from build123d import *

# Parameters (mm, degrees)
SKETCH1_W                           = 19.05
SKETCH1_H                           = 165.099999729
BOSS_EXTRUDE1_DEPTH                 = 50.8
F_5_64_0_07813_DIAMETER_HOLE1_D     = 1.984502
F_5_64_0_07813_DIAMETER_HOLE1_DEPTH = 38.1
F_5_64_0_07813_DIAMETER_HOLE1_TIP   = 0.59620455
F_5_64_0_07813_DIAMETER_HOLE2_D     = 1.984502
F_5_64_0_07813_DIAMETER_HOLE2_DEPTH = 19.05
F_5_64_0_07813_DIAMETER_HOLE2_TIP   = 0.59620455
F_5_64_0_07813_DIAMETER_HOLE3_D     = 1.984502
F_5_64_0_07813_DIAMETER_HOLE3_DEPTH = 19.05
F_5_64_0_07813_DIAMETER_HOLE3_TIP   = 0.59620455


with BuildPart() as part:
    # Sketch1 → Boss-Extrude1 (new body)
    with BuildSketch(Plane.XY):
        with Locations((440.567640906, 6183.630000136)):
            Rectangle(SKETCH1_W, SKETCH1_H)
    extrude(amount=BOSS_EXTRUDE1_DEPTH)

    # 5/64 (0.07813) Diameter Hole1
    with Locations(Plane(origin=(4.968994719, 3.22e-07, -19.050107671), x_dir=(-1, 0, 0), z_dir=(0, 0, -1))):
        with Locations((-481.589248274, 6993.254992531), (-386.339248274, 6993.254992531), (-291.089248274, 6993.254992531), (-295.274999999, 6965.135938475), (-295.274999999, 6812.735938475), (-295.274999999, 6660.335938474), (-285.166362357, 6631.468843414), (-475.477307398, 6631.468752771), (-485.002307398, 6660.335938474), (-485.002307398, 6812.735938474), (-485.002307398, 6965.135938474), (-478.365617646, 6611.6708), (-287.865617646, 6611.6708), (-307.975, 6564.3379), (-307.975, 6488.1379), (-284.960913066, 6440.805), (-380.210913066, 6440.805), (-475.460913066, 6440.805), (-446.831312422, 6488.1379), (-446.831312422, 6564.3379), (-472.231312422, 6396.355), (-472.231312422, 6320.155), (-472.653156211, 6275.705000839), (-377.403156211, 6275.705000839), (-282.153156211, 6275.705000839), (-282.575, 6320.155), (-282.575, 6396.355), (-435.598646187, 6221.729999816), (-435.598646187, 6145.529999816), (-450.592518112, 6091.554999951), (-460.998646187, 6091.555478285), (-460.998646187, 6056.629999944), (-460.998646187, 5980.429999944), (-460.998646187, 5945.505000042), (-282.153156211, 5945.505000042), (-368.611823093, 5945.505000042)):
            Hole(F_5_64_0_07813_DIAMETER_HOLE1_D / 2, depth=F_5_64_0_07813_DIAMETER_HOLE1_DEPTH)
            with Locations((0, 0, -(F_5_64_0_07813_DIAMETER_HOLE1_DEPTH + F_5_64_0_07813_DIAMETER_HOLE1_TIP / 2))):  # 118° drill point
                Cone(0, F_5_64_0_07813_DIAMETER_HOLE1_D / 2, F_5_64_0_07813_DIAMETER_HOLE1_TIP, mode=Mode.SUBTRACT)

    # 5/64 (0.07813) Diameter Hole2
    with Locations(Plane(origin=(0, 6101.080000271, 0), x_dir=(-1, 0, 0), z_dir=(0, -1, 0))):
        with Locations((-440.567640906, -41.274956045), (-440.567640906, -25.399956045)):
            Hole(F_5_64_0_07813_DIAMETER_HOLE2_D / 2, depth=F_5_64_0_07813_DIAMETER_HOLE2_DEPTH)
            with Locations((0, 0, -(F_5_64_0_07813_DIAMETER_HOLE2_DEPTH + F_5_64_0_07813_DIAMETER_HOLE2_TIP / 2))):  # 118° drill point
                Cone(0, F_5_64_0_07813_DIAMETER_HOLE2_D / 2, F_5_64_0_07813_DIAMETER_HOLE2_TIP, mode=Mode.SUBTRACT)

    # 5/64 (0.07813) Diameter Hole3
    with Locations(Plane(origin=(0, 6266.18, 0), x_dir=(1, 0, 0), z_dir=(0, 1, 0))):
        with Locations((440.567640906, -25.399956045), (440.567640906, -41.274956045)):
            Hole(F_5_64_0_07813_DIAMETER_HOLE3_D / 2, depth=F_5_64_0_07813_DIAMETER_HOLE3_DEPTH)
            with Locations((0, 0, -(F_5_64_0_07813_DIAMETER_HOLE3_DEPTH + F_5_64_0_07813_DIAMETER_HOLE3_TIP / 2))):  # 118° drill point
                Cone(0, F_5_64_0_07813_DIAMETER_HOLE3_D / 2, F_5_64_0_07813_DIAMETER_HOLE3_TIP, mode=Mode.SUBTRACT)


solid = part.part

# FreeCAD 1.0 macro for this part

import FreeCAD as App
import Part
import Sketcher

V = App.Vector
Q = App.Units.Quantity

doc = App.newDocument("Part")
body = doc.addObject("PartDesign::Body", "Body")

# Sketch on XY plane
sketch1 = body.newObject("Sketcher::SketchObject", "Sketch")
sketch1.AttachmentSupport = (doc.getObject("XY_Plane"), [""])
sketch1.MapMode = "FlatFace"
sketch1.addGeometry([
    Part.LineSegment(V(431.042641, 6266.18, 0), V(431.042641, 6101.08, 0)),
    Part.LineSegment(V(431.042641, 6101.08, 0), V(450.092641, 6101.08, 0)),
    Part.LineSegment(V(450.092641, 6101.08, 0), V(450.092641, 6266.18, 0)),
    Part.LineSegment(V(450.092641, 6266.18, 0), V(431.042641, 6266.18, 0)),
], False)
sketch1.addConstraint([
    Sketcher.Constraint("Coincident", 0, 2, 1, 1),
    Sketcher.Constraint("Coincident", 1, 2, 2, 1),
    Sketcher.Constraint("Coincident", 2, 2, 3, 1),
    Sketcher.Constraint("Coincident", 3, 2, 0, 1),
    Sketcher.Constraint("Vertical", 0),
    Sketcher.Constraint("Horizontal", 1),
    Sketcher.Constraint("Vertical", 2),
    Sketcher.Constraint("Horizontal", 3),
    Sketcher.Constraint("DistanceY", 0, 2, 0, 1, Q("6.5 in")),
    Sketcher.Constraint("DistanceX", 1, 1, 1, 2, Q("0.75 in")),
    Sketcher.Constraint("DistanceY", -1, 1, 0, 2, Q("240.2 in")),
    Sketcher.Constraint("DistanceX", -1, 1, 0, 2, 431.042641),
])
pad1 = body.newObject("PartDesign::Pad", "Pad")
pad1.Profile = sketch1
pad1.Length = Q("2 in")

# Sketch on XY plane
sketch2 = body.newObject("Sketcher::SketchObject", "Sketch001")
sketch2.AttachmentSupport = (doc.getObject("XY_Plane"), [""])
sketch2.MapMode = "FlatFace"
sketch2.AttachmentOffset = App.Placement(V(0, 0, -19.050108), App.Rotation())
sketch2.addGeometry([
    Part.Circle(V(486.558243, 6993.254993, 0), V(0, 0, 1), 0.992251),  # 0
    Part.Circle(V(391.308243, 6993.254993, 0), V(0, 0, 1), 0.992251),  # 1
    Part.Circle(V(296.058243, 6993.254993, 0), V(0, 0, 1), 0.992251),  # 2
    Part.Circle(V(300.243995, 6965.135939, 0), V(0, 0, 1), 0.992251),  # 3
    Part.Circle(V(300.243995, 6812.735939, 0), V(0, 0, 1), 0.992251),  # 4
    Part.Circle(V(300.243995, 6660.335939, 0), V(0, 0, 1), 0.992251),  # 5
    Part.Circle(V(290.135357, 6631.468844, 0), V(0, 0, 1), 0.992251),  # 6
    Part.Circle(V(480.446302, 6631.468753, 0), V(0, 0, 1), 0.992251),  # 7
    Part.Circle(V(489.971302, 6660.335939, 0), V(0, 0, 1), 0.992251),  # 8
    Part.Circle(V(489.971302, 6812.735939, 0), V(0, 0, 1), 0.992251),  # 9
    Part.Circle(V(489.971302, 6965.135939, 0), V(0, 0, 1), 0.992251),  # 10
    Part.Circle(V(483.334612, 6611.6708, 0), V(0, 0, 1), 0.992251),  # 11
    Part.Circle(V(292.834612, 6611.6708, 0), V(0, 0, 1), 0.992251),  # 12
    Part.Circle(V(312.943995, 6564.3379, 0), V(0, 0, 1), 0.992251),  # 13
    Part.Circle(V(312.943995, 6488.1379, 0), V(0, 0, 1), 0.992251),  # 14
    Part.Circle(V(289.929908, 6440.805, 0), V(0, 0, 1), 0.992251),  # 15
    Part.Circle(V(385.179908, 6440.805, 0), V(0, 0, 1), 0.992251),  # 16
    Part.Circle(V(480.429908, 6440.805, 0), V(0, 0, 1), 0.992251),  # 17
    Part.Circle(V(451.800307, 6488.1379, 0), V(0, 0, 1), 0.992251),  # 18
    Part.Circle(V(451.800307, 6564.3379, 0), V(0, 0, 1), 0.992251),  # 19
    Part.Circle(V(477.200307, 6396.355, 0), V(0, 0, 1), 0.992251),  # 20
    Part.Circle(V(477.200307, 6320.155, 0), V(0, 0, 1), 0.992251),  # 21
    Part.Circle(V(477.622151, 6275.705001, 0), V(0, 0, 1), 0.992251),  # 22
    Part.Circle(V(382.372151, 6275.705001, 0), V(0, 0, 1), 0.992251),  # 23
    Part.Circle(V(287.122151, 6275.705001, 0), V(0, 0, 1), 0.992251),  # 24
    Part.Circle(V(287.543995, 6320.155, 0), V(0, 0, 1), 0.992251),  # 25
    Part.Circle(V(287.543995, 6396.355, 0), V(0, 0, 1), 0.992251),  # 26
    Part.Circle(V(440.567641, 6221.73, 0), V(0, 0, 1), 0.992251),  # 27
    Part.Circle(V(440.567641, 6145.53, 0), V(0, 0, 1), 0.992251),  # 28
    Part.Circle(V(455.561513, 6091.555, 0), V(0, 0, 1), 0.992251),  # 29
    Part.Circle(V(465.967641, 6091.555479, 0), V(0, 0, 1), 0.992251),  # 30
    Part.Circle(V(465.967641, 6056.63, 0), V(0, 0, 1), 0.992251),  # 31
    Part.Circle(V(465.967641, 5980.43, 0), V(0, 0, 1), 0.992251),  # 32
    Part.Circle(V(465.967641, 5945.505, 0), V(0, 0, 1), 0.992251),  # 33
    Part.Circle(V(287.122151, 5945.505, 0), V(0, 0, 1), 0.992251),  # 34
    Part.Circle(V(373.580818, 5945.505, 0), V(0, 0, 1), 0.992251),  # 35
], False)
sketch2.addConstraint([
    Sketcher.Constraint("Equal", 0, 1),
    Sketcher.Constraint("Equal", 1, 2),
    Sketcher.Constraint("Equal", 2, 3),
    Sketcher.Constraint("Equal", 3, 4),
    Sketcher.Constraint("Equal", 4, 5),
    Sketcher.Constraint("Equal", 5, 6),
    Sketcher.Constraint("Equal", 6, 7),
    Sketcher.Constraint("Equal", 7, 8),
    Sketcher.Constraint("Equal", 8, 9),
    Sketcher.Constraint("Equal", 9, 10),
    Sketcher.Constraint("Equal", 10, 11),
    Sketcher.Constraint("Equal", 11, 12),
    Sketcher.Constraint("Equal", 12, 13),
    Sketcher.Constraint("Equal", 13, 14),
    Sketcher.Constraint("Equal", 14, 15),
    Sketcher.Constraint("Equal", 15, 16),
    Sketcher.Constraint("Equal", 16, 17),
    Sketcher.Constraint("Equal", 17, 18),
    Sketcher.Constraint("Equal", 18, 19),
    Sketcher.Constraint("Equal", 19, 20),
    Sketcher.Constraint("Equal", 20, 21),
    Sketcher.Constraint("Equal", 21, 22),
    Sketcher.Constraint("Equal", 22, 23),
    Sketcher.Constraint("Equal", 23, 24),
    Sketcher.Constraint("Equal", 24, 25),
    Sketcher.Constraint("Equal", 25, 26),
    Sketcher.Constraint("Equal", 26, 27),
    Sketcher.Constraint("Equal", 27, 28),
    Sketcher.Constraint("Equal", 28, 29),
    Sketcher.Constraint("Equal", 29, 30),
    Sketcher.Constraint("Equal", 30, 31),
    Sketcher.Constraint("Equal", 31, 32),
    Sketcher.Constraint("Equal", 32, 33),
    Sketcher.Constraint("Equal", 33, 34),
    Sketcher.Constraint("Equal", 34, 35),
    Sketcher.Constraint("Horizontal", 0, 3, 1, 3),
    Sketcher.Constraint("Horizontal", 1, 3, 2, 3),
    Sketcher.Constraint("Horizontal", 5, 3, 8, 3),
    Sketcher.Constraint("Horizontal", 4, 3, 9, 3),
    Sketcher.Constraint("Horizontal", 3, 3, 10, 3),
    Sketcher.Constraint("Horizontal", 11, 3, 12, 3),
    Sketcher.Constraint("Horizontal", 15, 3, 16, 3),
    Sketcher.Constraint("Horizontal", 16, 3, 17, 3),
    Sketcher.Constraint("Horizontal", 14, 3, 18, 3),
    Sketcher.Constraint("Horizontal", 13, 3, 19, 3),
    Sketcher.Constraint("Horizontal", 22, 3, 23, 3),
    Sketcher.Constraint("Horizontal", 23, 3, 24, 3),
    Sketcher.Constraint("Horizontal", 21, 3, 25, 3),
    Sketcher.Constraint("Horizontal", 20, 3, 26, 3),
    Sketcher.Constraint("Horizontal", 33, 3, 34, 3),
    Sketcher.Constraint("Horizontal", 34, 3, 35, 3),
    Sketcher.Constraint("Vertical", 3, 3, 4, 3),
    Sketcher.Constraint("Vertical", 4, 3, 5, 3),
    Sketcher.Constraint("Vertical", 8, 3, 9, 3),
    Sketcher.Constraint("Vertical", 9, 3, 10, 3),
    Sketcher.Constraint("Vertical", 13, 3, 14, 3),
    Sketcher.Constraint("Vertical", 18, 3, 19, 3),
    Sketcher.Constraint("Vertical", 20, 3, 21, 3),
    Sketcher.Constraint("Vertical", 25, 3, 26, 3),
    Sketcher.Constraint("Vertical", 27, 3, 28, 3),
    Sketcher.Constraint("Vertical", 30, 3, 31, 3),
    Sketcher.Constraint("Vertical", 31, 3, 32, 3),
    Sketcher.Constraint("Vertical", 32, 3, 33, 3),
    Sketcher.Constraint("Vertical", 24, 3, 34, 3),
    Sketcher.Constraint("DistanceY", 4, 3, 3, 3, Q("6 in")),
    Sketcher.Constraint("DistanceY", 5, 3, 4, 3, Q("6 in")),
    Sketcher.Constraint("DistanceY", 14, 3, 13, 3, Q("3 in")),
    Sketcher.Constraint("DistanceX", 18, 3, 20, 3, Q("1 in")),
    Sketcher.Constraint("DistanceY", 21, 3, 20, 3, Q("3 in")),
    Sketcher.Constraint("DistanceX", 25, 3, 14, 3, Q("1 in")),
    Sketcher.Constraint("DistanceY", 28, 3, 27, 3, Q("3 in")),
    Sketcher.Constraint("DistanceY", 29, 3, 21, 3, Q("9 in")),
    Sketcher.Constraint("DistanceX", 28, 3, 30, 3, Q("1 in")),
    Sketcher.Constraint("DistanceY", 32, 3, 31, 3, Q("3 in")),
    Sketcher.Constraint("DistanceX", 2, 3, 0, 3, Q("7.5 in")),
    Sketcher.Constraint("DistanceX", 12, 3, 11, 3, Q("7.5 in")),
    Sketcher.Constraint("DistanceX", 5, 3, 13, 3, Q("0.5 in")),
    Sketcher.Constraint("DistanceX", 15, 3, 17, 3, Q("7.5 in")),
    Sketcher.Constraint("DistanceY", 22, 3, 17, 3, Q("6.5 in")),
    Sketcher.Constraint("DistanceX", 24, 3, 22, 3, Q("7.5 in")),
    Sketcher.Constraint("DistanceY", 31, 3, 28, 3, Q("3.5 in")),
    Sketcher.Constraint("DistanceY", -1, 1, 27, 3, Q("244.95 in")),
    Sketcher.Constraint("DistanceX", 1, 3, 0, 3, Q("3.75 in")),
    Sketcher.Constraint("DistanceX", 15, 3, 16, 3, Q("3.75 in")),
    Sketcher.Constraint("DistanceY", 20, 3, 17, 3, Q("1.75 in")),
    Sketcher.Constraint("DistanceX", 23, 3, 22, 3, Q("3.75 in")),
    Sketcher.Constraint("DistanceY", 33, 3, 29, 3, Q("5.75 in")),
    Sketcher.Constraint("DistanceY", -1, 1, 11, 3, Q("260.302 in")),
    Sketcher.Constraint("DistanceY", -1, 1, 15, 3, Q("253.575 in")),
    Sketcher.Constraint("DistanceX", 7, 3, 8, 3, Q("0.375 in")),
    Sketcher.Constraint("Diameter", 0, 1.984502),
    Sketcher.Constraint("DistanceY", -1, 1, 13, 3, Q("258.4385 in")),
    Sketcher.Constraint("DistanceY", 6, 3, 5, 3, Q("1.1364998 in")),
    Sketcher.Constraint("DistanceX", 18, 3, 17, 3, 28.629601),
    Sketcher.Constraint("DistanceY", -1, 1, 3, 3, 6965.135939),
    Sketcher.Constraint("DistanceX", -1, 1, 22, 3, 477.622151),
    Sketcher.Constraint("DistanceX", -1, 1, 27, 3, 440.567641),
    Sketcher.Constraint("DistanceY", -1, 1, 30, 3, 6091.555479),
    Sketcher.Constraint("DistanceX", 2, 3, 3, 3, 4.185752),
    Sketcher.Constraint("DistanceY", 6, 3, 2, 3, 361.786149),
    Sketcher.Constraint("DistanceX", 7, 3, 0, 3, 6.111941),
    Sketcher.Constraint("DistanceY", 7, 3, 0, 3, 361.78624),
    Sketcher.Constraint("DistanceX", 7, 3, 11, 3, 2.88831),
    Sketcher.Constraint("DistanceX", 15, 3, 6, 3, 0.205449),
    Sketcher.Constraint("DistanceX", 28, 3, 29, 3, 14.993872),
    Sketcher.Constraint("DistanceX", -1, 1, 0, 3, 486.558243),
    Sketcher.Constraint("DistanceX", -1, 1, 6, 3, 290.135357),
    Sketcher.Constraint("DistanceX", -1, 1, 35, 3, 373.580818),
])
doc.recompute()
hole = body.newObject("PartDesign::Hole", "Hole")
hole.Profile = sketch2
hole.ThreadType = "None"
hole.Diameter = 1.984502
hole.DepthType = "Dimension"
hole.Depth = Q("1.5 in")
hole.DrillPoint = "Angled"
hole.DrillPointAngle = 118
hole.Reversed = True

# Sketch on XZ plane
sketch3 = body.newObject("Sketcher::SketchObject", "Sketch002")
sketch3.AttachmentSupport = (doc.getObject("XZ_Plane"), [""])
sketch3.MapMode = "FlatFace"
sketch3.AttachmentOffset = App.Placement(V(0, 0, -240.2 * 25.4), App.Rotation())
sketch3.addGeometry([
    Part.Circle(V(440.567641, 41.274956, 0), V(0, 0, 1), 0.992251),
    Part.Circle(V(440.567641, 25.399956, 0), V(0, 0, 1), 0.992251),
], False)
sketch3.addConstraint([
    Sketcher.Constraint("Equal", 0, 1),
    Sketcher.Constraint("Vertical", 0, 3, 1, 3),
    Sketcher.Constraint("DistanceY", 1, 3, 0, 3, Q("0.625 in")),
    Sketcher.Constraint("Diameter", 0, 1.984502),
    Sketcher.Constraint("DistanceX", -1, 1, 0, 3, 440.567641),
    Sketcher.Constraint("DistanceY", -1, 1, 0, 3, 41.274956),
])
doc.recompute()
hole2 = body.newObject("PartDesign::Hole", "Hole001")
hole2.Profile = sketch3
hole2.ThreadType = "None"
hole2.Diameter = 1.984502
hole2.DepthType = "Dimension"
hole2.Depth = Q("0.75 in")
hole2.DrillPoint = "Angled"
hole2.DrillPointAngle = 118

# Sketch on XZ plane
sketch4 = body.newObject("Sketcher::SketchObject", "Sketch003")
sketch4.AttachmentSupport = (doc.getObject("XZ_Plane"), [""])
sketch4.MapMode = "FlatFace"
sketch4.AttachmentOffset = App.Placement(V(0, 0, -246.7 * 25.4), App.Rotation())
sketch4.addGeometry([
    Part.Circle(V(440.567641, 25.399956, 0), V(0, 0, 1), 0.992251),
    Part.Circle(V(440.567641, 41.274956, 0), V(0, 0, 1), 0.992251),
], False)
sketch4.addConstraint([
    Sketcher.Constraint("Equal", 0, 1),
    Sketcher.Constraint("Vertical", 0, 3, 1, 3),
    Sketcher.Constraint("DistanceY", 0, 3, 1, 3, Q("0.625 in")),
    Sketcher.Constraint("Diameter", 0, 1.984502),
    Sketcher.Constraint("DistanceX", -1, 1, 0, 3, 440.567641),
    Sketcher.Constraint("DistanceY", -1, 1, 0, 3, 25.399956),
])
doc.recompute()
hole3 = body.newObject("PartDesign::Hole", "Hole002")
hole3.Profile = sketch4
hole3.ThreadType = "None"
hole3.Diameter = 1.984502
hole3.DepthType = "Dimension"
hole3.Depth = Q("0.75 in")
hole3.DrillPoint = "Angled"
hole3.DrillPointAngle = 118
hole3.Reversed = True

doc.recompute()
